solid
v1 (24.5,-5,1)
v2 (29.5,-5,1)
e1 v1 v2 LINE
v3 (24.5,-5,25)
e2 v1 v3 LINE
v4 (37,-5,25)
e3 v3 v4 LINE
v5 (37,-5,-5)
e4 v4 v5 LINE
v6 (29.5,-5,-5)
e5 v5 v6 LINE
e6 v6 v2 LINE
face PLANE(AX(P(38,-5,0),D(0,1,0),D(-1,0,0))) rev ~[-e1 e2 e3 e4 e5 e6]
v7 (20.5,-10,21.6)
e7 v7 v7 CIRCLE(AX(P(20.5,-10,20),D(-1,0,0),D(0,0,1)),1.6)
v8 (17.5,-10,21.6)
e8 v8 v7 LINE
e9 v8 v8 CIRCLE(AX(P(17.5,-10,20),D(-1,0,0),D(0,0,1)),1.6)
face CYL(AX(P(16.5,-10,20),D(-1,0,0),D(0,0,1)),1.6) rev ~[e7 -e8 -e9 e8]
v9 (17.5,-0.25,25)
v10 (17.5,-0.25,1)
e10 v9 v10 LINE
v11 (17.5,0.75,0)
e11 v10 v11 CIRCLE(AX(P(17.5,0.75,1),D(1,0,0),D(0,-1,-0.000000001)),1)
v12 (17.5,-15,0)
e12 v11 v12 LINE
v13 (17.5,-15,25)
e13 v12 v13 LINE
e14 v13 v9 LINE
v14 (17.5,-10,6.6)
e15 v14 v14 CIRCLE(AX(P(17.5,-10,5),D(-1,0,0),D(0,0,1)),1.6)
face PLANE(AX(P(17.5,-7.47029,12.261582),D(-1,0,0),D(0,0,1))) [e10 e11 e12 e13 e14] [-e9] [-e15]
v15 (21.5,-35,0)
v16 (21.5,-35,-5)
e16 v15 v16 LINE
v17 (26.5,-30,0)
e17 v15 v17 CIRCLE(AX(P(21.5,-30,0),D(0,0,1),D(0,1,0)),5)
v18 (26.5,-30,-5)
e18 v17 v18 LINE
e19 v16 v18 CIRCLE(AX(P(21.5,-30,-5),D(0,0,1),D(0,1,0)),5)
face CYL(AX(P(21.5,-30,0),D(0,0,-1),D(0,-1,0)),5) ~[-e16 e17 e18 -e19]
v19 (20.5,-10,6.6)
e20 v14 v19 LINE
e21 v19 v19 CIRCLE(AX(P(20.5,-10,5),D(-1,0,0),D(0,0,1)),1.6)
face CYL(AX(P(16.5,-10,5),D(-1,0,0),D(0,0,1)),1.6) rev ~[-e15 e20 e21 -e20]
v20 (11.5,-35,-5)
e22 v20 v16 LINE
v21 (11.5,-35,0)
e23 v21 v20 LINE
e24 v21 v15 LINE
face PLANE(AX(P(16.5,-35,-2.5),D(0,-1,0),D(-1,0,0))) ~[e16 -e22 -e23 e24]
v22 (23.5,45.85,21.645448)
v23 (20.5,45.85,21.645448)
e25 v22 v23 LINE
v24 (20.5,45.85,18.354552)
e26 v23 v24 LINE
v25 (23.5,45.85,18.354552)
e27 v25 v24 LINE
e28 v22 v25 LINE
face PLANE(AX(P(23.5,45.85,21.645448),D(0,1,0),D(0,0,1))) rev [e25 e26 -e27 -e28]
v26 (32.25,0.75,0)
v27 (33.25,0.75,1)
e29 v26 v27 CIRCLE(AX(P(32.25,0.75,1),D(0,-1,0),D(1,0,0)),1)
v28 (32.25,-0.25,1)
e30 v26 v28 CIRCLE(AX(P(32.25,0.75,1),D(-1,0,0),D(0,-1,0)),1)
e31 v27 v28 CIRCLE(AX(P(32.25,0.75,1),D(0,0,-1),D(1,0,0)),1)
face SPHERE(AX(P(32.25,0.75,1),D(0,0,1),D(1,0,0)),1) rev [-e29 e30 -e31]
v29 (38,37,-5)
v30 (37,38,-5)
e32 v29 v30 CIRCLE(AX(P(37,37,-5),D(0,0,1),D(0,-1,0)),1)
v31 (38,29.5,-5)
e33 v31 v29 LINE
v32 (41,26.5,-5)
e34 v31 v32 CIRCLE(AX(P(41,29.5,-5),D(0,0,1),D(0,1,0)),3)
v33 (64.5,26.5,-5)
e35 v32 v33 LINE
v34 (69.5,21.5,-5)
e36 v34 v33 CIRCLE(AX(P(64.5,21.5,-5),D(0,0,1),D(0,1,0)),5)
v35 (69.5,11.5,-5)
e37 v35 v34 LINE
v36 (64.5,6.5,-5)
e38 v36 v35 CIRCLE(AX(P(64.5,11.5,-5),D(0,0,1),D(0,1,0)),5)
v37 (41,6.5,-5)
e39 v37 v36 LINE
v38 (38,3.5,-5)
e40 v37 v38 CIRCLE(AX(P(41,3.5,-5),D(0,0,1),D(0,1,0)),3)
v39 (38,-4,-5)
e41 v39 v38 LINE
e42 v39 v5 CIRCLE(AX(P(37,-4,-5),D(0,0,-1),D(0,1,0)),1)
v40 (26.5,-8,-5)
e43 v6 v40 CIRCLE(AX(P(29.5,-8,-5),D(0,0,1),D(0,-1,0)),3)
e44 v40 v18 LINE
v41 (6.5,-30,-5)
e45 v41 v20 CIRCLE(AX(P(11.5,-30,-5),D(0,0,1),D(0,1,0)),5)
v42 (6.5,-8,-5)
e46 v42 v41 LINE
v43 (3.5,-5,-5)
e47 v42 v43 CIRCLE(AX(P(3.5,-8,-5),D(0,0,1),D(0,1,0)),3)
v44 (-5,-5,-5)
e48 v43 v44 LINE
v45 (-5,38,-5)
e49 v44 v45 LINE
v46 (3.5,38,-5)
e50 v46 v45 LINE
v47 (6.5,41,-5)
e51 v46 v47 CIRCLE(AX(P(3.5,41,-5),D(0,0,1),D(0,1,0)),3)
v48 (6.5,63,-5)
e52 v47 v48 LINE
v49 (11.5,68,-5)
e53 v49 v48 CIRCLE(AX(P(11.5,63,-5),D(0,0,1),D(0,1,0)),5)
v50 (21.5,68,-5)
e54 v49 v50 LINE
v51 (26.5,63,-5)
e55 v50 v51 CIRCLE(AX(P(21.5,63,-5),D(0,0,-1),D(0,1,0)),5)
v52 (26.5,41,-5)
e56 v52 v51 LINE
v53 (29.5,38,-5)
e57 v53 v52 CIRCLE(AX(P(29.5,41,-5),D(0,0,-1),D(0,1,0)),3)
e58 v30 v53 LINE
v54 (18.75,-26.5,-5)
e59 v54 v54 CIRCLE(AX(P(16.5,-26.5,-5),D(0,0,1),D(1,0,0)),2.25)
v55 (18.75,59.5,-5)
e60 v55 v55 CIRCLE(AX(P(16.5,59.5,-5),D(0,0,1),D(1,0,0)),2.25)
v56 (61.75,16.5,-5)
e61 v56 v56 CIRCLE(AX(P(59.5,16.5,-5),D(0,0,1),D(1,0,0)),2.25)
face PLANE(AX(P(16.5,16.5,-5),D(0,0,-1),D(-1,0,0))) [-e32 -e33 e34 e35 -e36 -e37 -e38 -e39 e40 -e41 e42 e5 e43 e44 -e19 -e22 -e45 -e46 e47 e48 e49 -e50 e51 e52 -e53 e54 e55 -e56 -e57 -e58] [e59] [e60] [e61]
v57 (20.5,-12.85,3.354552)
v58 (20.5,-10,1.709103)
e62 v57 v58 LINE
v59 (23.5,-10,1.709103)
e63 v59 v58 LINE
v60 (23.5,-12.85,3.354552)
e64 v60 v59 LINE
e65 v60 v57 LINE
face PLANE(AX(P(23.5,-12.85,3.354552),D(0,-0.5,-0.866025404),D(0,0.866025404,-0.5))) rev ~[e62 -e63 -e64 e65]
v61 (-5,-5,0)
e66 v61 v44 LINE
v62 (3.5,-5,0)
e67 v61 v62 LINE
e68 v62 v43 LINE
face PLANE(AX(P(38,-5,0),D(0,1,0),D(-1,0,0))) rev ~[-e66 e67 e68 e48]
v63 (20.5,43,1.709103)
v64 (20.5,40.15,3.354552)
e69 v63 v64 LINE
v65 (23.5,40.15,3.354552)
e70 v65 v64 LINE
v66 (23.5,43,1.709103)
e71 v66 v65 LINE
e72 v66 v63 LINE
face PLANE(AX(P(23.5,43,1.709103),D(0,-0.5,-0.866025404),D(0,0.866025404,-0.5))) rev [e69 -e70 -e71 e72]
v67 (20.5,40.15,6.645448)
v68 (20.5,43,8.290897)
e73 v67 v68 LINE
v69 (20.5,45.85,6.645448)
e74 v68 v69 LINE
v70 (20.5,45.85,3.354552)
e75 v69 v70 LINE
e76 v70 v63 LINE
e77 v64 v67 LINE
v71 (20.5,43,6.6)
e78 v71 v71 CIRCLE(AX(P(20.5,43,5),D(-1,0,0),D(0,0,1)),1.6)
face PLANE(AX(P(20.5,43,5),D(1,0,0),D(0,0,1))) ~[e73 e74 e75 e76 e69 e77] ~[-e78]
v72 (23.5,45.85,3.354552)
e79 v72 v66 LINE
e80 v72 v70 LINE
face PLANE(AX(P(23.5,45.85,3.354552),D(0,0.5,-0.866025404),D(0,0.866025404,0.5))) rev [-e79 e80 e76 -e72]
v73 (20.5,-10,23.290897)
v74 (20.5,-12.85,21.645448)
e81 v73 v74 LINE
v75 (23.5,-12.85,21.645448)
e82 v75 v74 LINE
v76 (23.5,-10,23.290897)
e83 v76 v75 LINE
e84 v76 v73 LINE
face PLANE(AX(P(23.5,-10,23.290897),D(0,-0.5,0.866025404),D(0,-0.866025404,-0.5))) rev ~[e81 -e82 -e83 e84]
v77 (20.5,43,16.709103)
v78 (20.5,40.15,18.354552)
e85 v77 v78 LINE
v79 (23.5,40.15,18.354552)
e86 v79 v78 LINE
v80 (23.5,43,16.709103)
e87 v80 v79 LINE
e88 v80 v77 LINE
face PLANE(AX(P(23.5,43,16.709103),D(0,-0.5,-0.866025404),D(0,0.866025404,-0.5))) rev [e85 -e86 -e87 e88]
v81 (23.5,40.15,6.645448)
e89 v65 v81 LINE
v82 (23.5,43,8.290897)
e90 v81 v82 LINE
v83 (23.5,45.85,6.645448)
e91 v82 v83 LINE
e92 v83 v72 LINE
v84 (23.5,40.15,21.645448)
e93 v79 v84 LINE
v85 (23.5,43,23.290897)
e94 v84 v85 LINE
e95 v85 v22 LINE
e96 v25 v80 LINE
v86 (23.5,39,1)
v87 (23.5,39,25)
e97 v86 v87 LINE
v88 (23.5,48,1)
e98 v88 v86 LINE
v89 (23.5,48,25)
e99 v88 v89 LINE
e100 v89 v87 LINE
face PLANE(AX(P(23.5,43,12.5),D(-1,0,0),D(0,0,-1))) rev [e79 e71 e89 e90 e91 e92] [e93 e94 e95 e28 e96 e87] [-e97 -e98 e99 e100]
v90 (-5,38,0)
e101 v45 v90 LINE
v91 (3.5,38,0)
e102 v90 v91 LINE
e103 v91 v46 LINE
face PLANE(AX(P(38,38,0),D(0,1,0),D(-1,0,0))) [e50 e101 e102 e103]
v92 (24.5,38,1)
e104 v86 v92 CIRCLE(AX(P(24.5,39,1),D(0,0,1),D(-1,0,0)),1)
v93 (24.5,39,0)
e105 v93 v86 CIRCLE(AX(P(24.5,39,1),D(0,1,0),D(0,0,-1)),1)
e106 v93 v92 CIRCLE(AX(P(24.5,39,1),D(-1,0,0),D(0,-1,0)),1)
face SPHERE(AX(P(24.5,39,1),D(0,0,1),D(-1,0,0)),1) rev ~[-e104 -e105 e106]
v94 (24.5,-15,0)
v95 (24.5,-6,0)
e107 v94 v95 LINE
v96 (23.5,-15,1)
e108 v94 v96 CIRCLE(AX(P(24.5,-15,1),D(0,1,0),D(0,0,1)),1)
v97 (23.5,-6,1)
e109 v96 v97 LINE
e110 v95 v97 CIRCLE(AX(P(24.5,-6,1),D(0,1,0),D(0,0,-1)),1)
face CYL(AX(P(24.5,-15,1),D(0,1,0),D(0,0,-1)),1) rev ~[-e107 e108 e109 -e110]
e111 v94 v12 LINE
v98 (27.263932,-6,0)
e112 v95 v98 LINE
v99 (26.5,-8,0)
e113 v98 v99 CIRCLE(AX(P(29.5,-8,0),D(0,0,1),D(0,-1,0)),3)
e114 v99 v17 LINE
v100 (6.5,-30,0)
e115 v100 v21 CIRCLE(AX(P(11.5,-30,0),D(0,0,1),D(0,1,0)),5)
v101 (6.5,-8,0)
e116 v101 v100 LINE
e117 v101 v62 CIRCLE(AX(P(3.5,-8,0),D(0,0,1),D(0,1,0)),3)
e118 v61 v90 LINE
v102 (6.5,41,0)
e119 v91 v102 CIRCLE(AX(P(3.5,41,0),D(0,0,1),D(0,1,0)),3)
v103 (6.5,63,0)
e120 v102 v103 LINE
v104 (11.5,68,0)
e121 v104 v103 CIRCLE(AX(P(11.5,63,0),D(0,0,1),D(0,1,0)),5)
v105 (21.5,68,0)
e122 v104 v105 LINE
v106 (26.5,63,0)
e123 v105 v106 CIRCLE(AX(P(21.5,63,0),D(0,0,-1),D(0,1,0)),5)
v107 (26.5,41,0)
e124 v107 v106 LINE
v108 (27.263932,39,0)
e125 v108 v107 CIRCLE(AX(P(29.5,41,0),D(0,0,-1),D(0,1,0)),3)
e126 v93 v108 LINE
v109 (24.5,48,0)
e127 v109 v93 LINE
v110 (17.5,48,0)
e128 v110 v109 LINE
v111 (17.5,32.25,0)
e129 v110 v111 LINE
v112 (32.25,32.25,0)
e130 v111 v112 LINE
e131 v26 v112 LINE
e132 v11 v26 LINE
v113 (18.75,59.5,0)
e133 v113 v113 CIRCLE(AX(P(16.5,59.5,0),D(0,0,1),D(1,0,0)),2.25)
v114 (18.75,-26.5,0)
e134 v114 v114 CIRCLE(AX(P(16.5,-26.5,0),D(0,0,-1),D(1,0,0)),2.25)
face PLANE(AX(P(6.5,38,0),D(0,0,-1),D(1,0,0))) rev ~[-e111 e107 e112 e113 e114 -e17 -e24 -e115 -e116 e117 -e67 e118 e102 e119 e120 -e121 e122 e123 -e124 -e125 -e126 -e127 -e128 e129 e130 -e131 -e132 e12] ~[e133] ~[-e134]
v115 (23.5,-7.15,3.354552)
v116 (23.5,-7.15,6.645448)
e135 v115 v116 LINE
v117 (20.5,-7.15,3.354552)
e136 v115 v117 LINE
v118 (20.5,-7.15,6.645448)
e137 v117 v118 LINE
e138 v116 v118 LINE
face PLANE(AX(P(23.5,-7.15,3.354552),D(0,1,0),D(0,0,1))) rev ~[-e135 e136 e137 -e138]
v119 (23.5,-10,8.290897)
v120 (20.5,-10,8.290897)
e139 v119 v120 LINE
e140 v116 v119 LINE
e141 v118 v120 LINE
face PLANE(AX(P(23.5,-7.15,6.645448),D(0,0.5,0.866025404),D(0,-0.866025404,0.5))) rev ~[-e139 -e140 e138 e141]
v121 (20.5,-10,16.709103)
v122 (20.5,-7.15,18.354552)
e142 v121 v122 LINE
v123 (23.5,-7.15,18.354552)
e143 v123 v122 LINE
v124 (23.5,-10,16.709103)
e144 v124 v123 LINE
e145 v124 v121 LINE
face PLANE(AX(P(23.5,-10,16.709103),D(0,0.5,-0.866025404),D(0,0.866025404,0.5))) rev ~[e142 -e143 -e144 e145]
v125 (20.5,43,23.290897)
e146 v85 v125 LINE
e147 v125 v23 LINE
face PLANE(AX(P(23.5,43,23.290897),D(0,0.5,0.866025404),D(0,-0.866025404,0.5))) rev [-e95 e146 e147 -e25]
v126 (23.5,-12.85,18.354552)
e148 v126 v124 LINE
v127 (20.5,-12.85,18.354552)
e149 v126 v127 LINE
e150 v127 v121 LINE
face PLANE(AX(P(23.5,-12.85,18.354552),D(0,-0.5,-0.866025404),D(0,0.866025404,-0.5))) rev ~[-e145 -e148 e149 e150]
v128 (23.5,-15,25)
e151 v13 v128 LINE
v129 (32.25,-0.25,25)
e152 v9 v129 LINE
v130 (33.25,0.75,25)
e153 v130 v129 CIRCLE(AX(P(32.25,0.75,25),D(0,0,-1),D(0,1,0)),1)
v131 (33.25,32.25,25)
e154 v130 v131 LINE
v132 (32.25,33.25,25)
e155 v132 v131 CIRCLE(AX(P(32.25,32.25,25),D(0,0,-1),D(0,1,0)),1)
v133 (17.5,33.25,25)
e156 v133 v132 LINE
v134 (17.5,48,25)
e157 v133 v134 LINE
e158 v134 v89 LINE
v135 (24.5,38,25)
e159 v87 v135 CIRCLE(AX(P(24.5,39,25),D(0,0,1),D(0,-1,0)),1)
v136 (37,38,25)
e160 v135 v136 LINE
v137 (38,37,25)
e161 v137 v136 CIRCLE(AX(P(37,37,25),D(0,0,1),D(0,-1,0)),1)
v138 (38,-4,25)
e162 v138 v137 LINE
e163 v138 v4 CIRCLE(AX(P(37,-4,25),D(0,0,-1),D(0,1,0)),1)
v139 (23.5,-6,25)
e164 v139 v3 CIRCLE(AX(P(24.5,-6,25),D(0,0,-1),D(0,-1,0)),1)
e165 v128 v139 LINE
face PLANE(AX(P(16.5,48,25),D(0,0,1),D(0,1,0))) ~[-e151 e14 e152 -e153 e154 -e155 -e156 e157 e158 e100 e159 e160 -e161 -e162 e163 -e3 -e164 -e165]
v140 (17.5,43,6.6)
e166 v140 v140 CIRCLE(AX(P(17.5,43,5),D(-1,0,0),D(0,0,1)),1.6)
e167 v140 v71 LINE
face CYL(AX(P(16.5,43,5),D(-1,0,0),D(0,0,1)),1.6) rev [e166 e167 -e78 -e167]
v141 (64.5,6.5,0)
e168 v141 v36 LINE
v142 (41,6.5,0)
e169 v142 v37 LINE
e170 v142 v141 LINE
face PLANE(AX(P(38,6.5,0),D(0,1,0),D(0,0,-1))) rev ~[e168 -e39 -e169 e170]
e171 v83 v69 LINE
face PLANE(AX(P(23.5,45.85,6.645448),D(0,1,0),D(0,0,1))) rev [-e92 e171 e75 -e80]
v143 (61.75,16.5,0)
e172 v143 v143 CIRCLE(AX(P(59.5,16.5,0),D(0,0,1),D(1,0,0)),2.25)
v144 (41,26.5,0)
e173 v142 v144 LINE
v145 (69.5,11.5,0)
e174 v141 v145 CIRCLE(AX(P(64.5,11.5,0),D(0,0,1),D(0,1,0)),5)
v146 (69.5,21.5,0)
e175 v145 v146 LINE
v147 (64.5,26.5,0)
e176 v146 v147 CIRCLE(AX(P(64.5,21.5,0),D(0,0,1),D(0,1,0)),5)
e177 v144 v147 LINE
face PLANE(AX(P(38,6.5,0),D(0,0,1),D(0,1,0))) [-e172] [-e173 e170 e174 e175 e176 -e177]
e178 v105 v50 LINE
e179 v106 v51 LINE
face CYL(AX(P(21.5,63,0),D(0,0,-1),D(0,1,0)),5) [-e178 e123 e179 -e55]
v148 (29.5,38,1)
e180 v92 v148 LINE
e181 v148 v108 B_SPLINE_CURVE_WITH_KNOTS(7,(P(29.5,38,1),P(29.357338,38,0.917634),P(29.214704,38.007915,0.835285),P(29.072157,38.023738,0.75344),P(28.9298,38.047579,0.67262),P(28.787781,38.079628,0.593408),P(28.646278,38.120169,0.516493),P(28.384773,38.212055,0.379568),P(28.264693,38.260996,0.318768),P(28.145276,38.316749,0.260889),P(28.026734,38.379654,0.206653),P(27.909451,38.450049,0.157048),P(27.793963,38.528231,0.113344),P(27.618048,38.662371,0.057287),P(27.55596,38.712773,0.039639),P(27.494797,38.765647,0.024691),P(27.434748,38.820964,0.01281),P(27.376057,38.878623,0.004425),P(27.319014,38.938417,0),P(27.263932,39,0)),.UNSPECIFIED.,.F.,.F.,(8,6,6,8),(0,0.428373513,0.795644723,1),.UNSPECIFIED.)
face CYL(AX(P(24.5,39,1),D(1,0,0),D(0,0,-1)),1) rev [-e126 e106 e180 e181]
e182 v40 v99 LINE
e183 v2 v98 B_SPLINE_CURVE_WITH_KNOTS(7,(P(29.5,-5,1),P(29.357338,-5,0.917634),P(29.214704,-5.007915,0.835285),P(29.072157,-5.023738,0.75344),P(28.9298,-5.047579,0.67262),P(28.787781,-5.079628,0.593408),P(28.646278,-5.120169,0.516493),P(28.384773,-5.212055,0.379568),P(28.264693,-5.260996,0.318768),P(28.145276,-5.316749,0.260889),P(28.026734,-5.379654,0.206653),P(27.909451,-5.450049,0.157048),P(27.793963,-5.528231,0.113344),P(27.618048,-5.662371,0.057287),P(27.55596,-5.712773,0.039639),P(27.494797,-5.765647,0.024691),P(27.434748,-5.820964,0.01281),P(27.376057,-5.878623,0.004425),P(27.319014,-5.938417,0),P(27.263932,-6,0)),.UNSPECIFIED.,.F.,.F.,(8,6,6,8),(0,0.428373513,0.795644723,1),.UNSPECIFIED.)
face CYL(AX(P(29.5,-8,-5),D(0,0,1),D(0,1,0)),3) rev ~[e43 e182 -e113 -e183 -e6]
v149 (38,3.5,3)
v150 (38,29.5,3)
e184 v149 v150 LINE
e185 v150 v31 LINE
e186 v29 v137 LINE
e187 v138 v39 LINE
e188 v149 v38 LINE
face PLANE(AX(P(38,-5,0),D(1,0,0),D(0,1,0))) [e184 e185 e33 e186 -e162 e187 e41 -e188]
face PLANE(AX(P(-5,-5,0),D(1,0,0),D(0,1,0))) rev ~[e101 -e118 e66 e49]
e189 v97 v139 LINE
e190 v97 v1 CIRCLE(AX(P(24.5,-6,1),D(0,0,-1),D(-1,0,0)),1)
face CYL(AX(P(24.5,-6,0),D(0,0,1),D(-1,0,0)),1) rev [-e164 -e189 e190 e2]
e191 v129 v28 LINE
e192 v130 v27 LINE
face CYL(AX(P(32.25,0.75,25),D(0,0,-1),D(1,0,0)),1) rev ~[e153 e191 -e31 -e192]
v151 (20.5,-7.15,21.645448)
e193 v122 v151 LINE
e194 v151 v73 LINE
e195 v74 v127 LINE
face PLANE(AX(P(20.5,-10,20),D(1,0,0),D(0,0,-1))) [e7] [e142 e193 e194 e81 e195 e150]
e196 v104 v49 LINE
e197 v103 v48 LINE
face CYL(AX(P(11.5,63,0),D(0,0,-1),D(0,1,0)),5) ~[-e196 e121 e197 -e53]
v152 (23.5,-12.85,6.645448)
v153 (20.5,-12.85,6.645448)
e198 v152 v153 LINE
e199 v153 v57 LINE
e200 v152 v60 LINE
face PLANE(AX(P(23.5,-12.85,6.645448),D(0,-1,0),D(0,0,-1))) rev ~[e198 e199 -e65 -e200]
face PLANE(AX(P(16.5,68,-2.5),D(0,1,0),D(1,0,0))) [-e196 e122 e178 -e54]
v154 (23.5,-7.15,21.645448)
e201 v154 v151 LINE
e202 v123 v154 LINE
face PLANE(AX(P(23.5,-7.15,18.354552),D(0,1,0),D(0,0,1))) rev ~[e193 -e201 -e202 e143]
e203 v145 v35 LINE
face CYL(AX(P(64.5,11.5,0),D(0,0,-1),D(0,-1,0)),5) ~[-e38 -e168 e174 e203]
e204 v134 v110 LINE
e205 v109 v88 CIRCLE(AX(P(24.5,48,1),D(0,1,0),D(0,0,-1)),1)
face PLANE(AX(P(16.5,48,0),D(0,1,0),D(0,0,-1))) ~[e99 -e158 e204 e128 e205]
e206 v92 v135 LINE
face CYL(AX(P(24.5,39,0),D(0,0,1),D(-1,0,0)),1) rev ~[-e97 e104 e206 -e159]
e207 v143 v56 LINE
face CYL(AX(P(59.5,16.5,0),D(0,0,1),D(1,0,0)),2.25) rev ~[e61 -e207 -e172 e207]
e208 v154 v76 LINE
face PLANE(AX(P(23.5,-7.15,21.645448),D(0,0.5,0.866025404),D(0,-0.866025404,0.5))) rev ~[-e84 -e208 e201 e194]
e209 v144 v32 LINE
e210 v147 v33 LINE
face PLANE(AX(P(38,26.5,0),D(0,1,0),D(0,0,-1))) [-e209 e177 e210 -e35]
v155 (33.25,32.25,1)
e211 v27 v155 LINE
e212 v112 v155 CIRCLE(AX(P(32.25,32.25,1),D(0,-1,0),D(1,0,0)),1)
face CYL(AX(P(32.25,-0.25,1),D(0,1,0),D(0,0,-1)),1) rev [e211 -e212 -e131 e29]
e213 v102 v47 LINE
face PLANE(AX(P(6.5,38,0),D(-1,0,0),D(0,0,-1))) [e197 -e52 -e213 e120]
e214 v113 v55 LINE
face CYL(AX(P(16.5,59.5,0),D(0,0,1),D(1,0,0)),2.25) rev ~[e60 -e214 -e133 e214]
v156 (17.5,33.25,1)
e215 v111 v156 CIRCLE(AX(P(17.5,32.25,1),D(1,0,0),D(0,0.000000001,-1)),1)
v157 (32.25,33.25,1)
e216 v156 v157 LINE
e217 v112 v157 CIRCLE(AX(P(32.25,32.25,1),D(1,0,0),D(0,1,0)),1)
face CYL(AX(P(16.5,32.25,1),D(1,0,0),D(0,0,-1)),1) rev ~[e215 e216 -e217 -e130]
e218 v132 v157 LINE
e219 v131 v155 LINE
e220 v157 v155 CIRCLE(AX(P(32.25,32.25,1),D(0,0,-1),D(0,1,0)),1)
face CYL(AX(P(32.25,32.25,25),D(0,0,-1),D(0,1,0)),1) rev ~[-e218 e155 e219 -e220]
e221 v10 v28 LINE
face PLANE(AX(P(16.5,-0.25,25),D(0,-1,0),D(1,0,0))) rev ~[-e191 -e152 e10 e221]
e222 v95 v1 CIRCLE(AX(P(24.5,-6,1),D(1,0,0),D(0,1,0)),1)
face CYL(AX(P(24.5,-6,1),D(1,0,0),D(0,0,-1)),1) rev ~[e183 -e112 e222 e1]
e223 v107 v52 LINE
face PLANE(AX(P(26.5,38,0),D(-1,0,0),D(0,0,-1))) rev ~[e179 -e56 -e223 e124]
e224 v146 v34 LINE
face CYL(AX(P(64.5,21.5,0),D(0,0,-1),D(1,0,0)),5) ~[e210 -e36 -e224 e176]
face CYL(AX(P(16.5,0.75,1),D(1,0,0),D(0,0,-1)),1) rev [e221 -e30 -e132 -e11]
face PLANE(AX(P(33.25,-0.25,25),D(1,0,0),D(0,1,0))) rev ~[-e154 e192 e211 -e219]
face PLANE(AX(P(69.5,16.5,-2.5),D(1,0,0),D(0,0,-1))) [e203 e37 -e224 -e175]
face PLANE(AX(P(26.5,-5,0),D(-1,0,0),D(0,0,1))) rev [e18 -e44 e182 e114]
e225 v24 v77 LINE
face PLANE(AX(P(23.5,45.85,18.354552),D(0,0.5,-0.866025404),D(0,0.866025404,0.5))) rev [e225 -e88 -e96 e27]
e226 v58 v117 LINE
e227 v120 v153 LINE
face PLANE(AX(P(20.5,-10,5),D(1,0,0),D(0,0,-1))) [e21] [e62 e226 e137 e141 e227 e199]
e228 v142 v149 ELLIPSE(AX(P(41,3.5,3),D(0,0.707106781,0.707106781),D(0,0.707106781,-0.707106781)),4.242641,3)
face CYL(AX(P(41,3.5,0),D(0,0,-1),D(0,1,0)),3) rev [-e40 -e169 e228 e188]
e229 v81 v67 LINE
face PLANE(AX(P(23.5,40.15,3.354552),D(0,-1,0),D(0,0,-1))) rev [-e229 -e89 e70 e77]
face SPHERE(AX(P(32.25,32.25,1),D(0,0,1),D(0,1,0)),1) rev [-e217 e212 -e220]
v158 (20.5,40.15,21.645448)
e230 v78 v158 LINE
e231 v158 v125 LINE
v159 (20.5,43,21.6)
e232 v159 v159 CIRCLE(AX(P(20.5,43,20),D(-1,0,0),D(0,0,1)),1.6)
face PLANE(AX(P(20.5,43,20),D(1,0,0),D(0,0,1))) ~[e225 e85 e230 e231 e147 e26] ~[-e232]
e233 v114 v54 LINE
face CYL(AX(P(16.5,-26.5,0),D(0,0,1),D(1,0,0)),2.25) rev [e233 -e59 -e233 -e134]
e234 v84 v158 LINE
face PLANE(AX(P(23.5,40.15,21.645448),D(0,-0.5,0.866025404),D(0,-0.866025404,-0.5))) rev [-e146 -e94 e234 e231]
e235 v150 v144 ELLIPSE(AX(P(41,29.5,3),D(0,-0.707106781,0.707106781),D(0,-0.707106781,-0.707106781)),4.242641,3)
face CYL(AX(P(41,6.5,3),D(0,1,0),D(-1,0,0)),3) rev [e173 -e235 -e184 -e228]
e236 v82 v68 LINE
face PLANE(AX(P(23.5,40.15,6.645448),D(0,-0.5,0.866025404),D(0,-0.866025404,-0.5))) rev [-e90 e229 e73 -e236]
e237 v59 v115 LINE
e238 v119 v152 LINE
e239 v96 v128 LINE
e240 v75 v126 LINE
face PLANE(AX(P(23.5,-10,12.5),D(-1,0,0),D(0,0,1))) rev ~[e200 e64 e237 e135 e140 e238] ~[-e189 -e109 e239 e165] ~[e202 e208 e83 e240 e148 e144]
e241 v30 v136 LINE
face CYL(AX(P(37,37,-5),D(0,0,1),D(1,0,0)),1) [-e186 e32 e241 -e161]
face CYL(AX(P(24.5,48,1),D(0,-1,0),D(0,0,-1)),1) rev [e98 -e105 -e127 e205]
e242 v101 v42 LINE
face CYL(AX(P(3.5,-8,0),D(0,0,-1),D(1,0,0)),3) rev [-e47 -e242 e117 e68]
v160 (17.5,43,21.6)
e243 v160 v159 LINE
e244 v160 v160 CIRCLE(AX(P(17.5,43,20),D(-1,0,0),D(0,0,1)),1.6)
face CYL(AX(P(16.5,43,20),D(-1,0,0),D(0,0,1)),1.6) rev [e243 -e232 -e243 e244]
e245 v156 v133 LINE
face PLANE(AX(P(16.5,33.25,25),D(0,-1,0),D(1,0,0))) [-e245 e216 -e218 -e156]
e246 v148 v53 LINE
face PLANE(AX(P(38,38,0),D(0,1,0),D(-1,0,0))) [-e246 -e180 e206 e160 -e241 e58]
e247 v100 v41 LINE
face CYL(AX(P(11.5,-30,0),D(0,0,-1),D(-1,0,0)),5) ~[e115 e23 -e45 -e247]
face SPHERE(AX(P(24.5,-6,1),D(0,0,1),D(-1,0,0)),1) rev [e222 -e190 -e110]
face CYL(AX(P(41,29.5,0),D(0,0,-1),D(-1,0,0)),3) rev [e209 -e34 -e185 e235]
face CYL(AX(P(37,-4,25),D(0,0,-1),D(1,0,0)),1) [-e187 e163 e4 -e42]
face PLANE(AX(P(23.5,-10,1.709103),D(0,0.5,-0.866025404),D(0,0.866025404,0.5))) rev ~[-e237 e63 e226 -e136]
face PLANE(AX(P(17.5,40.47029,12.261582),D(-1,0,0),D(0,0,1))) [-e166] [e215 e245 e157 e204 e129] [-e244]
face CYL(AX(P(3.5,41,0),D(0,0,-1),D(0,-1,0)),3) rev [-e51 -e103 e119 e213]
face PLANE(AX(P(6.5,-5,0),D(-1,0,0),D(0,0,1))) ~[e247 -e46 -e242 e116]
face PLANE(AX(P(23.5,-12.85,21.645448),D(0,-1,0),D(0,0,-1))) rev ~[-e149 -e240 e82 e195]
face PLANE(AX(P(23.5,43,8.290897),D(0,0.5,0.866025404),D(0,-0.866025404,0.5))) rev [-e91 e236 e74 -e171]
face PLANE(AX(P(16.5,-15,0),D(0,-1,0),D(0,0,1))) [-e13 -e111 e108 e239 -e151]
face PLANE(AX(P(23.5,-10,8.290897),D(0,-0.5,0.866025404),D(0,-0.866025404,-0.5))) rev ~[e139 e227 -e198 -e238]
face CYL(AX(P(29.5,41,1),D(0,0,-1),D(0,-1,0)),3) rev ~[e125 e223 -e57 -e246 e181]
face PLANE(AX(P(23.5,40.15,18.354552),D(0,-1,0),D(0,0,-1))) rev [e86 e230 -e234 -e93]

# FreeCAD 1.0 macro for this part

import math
import FreeCAD as App
import Part
import Sketcher
from FreeCAD import Vector
Q = App.Units.Quantity


def edges_at(feature, points):
    """Names of the edges that pass closest to the given points."""
    edges = feature.Shape.Edges
    near = lambda p: min(range(len(edges)), key=lambda i: edges[i].distToShape(Part.Vertex(*p))[0])
    return sorted({f"Edge{near(p) + 1}" for p in points})


def add_polygon(sketch, points):
    """Adds a closed chain of lines whose ends are joined by coincident constraints."""
    first, n = sketch.GeometryCount, len(points)
    for a, b in zip(points, points[1:] + points[:1]):
        sketch.addGeometry(Part.LineSegment(App.Vector(*a, 0), App.Vector(*b, 0)), False)
    for i in range(n):
        sketch.addConstraint(Sketcher.Constraint("Coincident", first + i, 2, first + (i + 1) % n, 1))

doc = App.newDocument("Part")
params = doc.addObject("Spreadsheet::Sheet", "Params")
for row, (alias, value) in enumerate([
    ("sketch1_width", "43 mm"),
    ("sketch1_width2", "33 mm"),
    ("pad1_length", "25 mm"),
    ("sketch2_width", "43 mm"),
    ("pad2_length", "5 mm"),
    ("sketch3_width", "20 mm"),
    ("sketch3_height", "5 mm"),
    ("pad3_length", "30 mm"),
    ("sketch4_diameter", "4.5 mm"),
    ("sketch5_height", "43 mm"),
    ("sketch5_width", "21.5 mm"),
    ("pocket2_length", "25 mm"),
    ("sketch6_width", "10 mm"),
    ("sketch6_height", "25 mm"),
    ("pad4_length", "7 mm"),
    ("fillet_radius", "1 mm"),
    ("sketch7_diameter", "3.2 mm"),
    ("pocket4_length", "3 mm"),
    ("sketch9_height", "33.5 mm"),
    ("sketch9_width", "16.75 mm"),
    ("pocket5_length", "25 mm"),
    ("fillet2_radius", "1 mm"),
    ("fillet3_radius", "1 mm"),
    ("fillet4_radius", "5 mm"),
    ("fillet5_radius", "1 mm"),
    ("sketch10_radius", "1 mm"),
    ("sketch10_height", "24 mm"),
    ("sketch10_width", "15.75 mm"),
    ("pocket6_length", "1 mm"),
    ("sketch11_width", "20 mm"),
    ("sketch11_height", "5 mm"),
    ("pad5_length", "31.5 mm"),
    ("sketch12_diameter", "4.5 mm"),
    ("fillet6_radius", "5 mm"),
    ("fillet7_radius", "3 mm"),
    ("fillet8_radius", "1 mm"),
], start=1):
    params.set(f"A{row}", alias)
    params.set(f"B{row}", "=" + value)
    params.setAlias(f"B{row}", alias)

body = doc.addObject("PartDesign::Body", "Body")

# Sketch on XY plane
sketch1 = body.newObject("Sketcher::SketchObject", "Sketch")
sketch1.AttachmentSupport = (doc.getObject("XY_Plane"), [""])
sketch1.MapMode = "FlatFace"
add_polygon(sketch1, [(-5, 38), (-5, -5), (38, -5), (38, 38)])  # lines 0-3
add_polygon(sketch1, [(33, 0), (0, 0), (0, 33), (33, 33)])  # lines 4-7
sketch1.addConstraint(Sketcher.Constraint("Vertical", 0))
sketch1.addConstraint(Sketcher.Constraint("Horizontal", 1))
sketch1.addConstraint(Sketcher.Constraint("Vertical", 2))
sketch1.addConstraint(Sketcher.Constraint("Horizontal", 3))
sketch1.addConstraint(Sketcher.Constraint("Horizontal", 4))
sketch1.addConstraint(Sketcher.Constraint("Vertical", 5))
sketch1.addConstraint(Sketcher.Constraint("Horizontal", 6))
sketch1.addConstraint(Sketcher.Constraint("Vertical", 7))
sketch1.addConstraint(Sketcher.Constraint("Coincident", 4, 2, -1, 1))
sketch1.addConstraint(Sketcher.Constraint("Equal", 3, 0))
sketch1.addConstraint(Sketcher.Constraint("Equal", 6, 5))
sketch1.addConstraint(Sketcher.Constraint("DistanceX", 1, 1, 1, 2, 43.0))
sketch1.addConstraint(Sketcher.Constraint("DistanceX", 4, 2, 4, 1, 33.0))
sketch1.addConstraint(Sketcher.Constraint("DistanceX", 0, 2, -1, 1, 5.0))
sketch1.addConstraint(Sketcher.Constraint("DistanceY", 0, 2, -1, 1, 5.0))
sketch1.setExpression("Constraints[19]", "Params.sketch1_width")
sketch1.setExpression("Constraints[20]", "Params.sketch1_width2")
pad1 = body.newObject("PartDesign::Pad", "Pad")
pad1.Profile = sketch1
pad1.setExpression("Length", "Params.pad1_length")

# Sketch on XY plane
sketch2 = body.newObject("Sketcher::SketchObject", "Sketch001")
sketch2.AttachmentSupport = (doc.getObject("XY_Plane"), [""])
sketch2.MapMode = "FlatFace"
add_polygon(sketch2, [(38, 38), (38, -5), (-5, -5), (-5, 38)])  # lines 0-3
sketch2.addConstraint(Sketcher.Constraint("Vertical", 0))
sketch2.addConstraint(Sketcher.Constraint("Horizontal", 1))
sketch2.addConstraint(Sketcher.Constraint("Vertical", 2))
sketch2.addConstraint(Sketcher.Constraint("Horizontal", 3))
sketch2.addConstraint(Sketcher.Constraint("Equal", 3, 0))
sketch2.addConstraint(Sketcher.Constraint("DistanceX", 1, 2, 1, 1, 43.0))
sketch2.addConstraint(Sketcher.Constraint("DistanceX", -1, 1, 0, 2, 38.0))
sketch2.addConstraint(Sketcher.Constraint("DistanceY", 0, 2, -1, 1, 5.0))
sketch2.setExpression("Constraints[9]", "Params.sketch2_width")
pad2 = body.newObject("PartDesign::Pad", "Pad001")
pad2.Profile = sketch2
pad2.setExpression("Length", "Params.pad2_length")
pad2.Reversed = True

# Sketch on XZ plane
sketch3 = body.newObject("Sketcher::SketchObject", "Sketch002")
sketch3.AttachmentSupport = (doc.getObject("XZ_Plane"), [""])
sketch3.MapMode = "FlatFace"
sketch3.AttachmentOffset = App.Placement(Vector(0, 0, -38), App.Rotation())
add_polygon(sketch3, [(6.5, -5), (6.5, 0), (26.5, 0), (26.5, -5)])  # lines 0-3
sketch3.addConstraint(Sketcher.Constraint("Vertical", 0))
sketch3.addConstraint(Sketcher.Constraint("Horizontal", 1))
sketch3.addConstraint(Sketcher.Constraint("Vertical", 2))
sketch3.addConstraint(Sketcher.Constraint("Horizontal", 3))
sketch3.addConstraint(Sketcher.Constraint("PointOnObject", 0, 2, -1))
sketch3.addConstraint(Sketcher.Constraint("DistanceX", 1, 1, 1, 2, 20.0))
sketch3.addConstraint(Sketcher.Constraint("DistanceY", 0, 1, 0, 2, 5.0))
sketch3.addConstraint(Sketcher.Constraint("DistanceX", -1, 1, 0, 2, 6.5))
sketch3.setExpression("Constraints[9]", "Params.sketch3_width")
sketch3.setExpression("Constraints[10]", "Params.sketch3_height")
pad3 = body.newObject("PartDesign::Pad", "Pad002")
pad3.Profile = sketch3
pad3.setExpression("Length", "Params.pad3_length")
pad3.Reversed = True

# Sketch on XY plane
sketch4 = body.newObject("Sketcher::SketchObject", "Sketch003")
sketch4.AttachmentSupport = (doc.getObject("XY_Plane"), [""])
sketch4.MapMode = "FlatFace"
sketch4.addGeometry(Part.Circle(Vector(16.5, 59.5, 0), Vector(0, 0, 1), 2.25), False)
sketch4.addConstraint(Sketcher.Constraint("Diameter", 0, 4.5))
sketch4.addConstraint(Sketcher.Constraint("DistanceX", -1, 1, 0, 3, 16.5))
sketch4.addConstraint(Sketcher.Constraint("DistanceY", -1, 1, 0, 3, 59.5))
sketch4.setExpression("Constraints[0]", "Params.sketch4_diameter")
pocket1 = body.newObject("PartDesign::Pocket", "Pocket")
pocket1.Profile = sketch4
pocket1.Type = "ThroughAll"
doc.recompute()

datumplane = body.newObject("PartDesign::Plane", "DatumPlane")
datumplane.AttachmentSupport = (doc.getObject("XZ_Plane"), [""])
datumplane.MapMode = "FlatFace"
datumplane.AttachmentOffset = App.Placement(Vector(0, 0, -16.5), App.Rotation())
mirrored = body.newObject("PartDesign::Mirrored", "Mirrored")
mirrored.Originals = [pad3, pocket1]
mirrored.MirrorPlane = (datumplane, [""])
body.Tip = mirrored

# Sketch on XY plane
sketch5 = body.newObject("Sketcher::SketchObject", "Sketch004")
sketch5.AttachmentSupport = (doc.getObject("XY_Plane"), [""])
sketch5.MapMode = "FlatFace"
sketch5.AttachmentOffset = App.Placement(Vector(0, 0, 25), App.Rotation())
add_polygon(sketch5, [(-5, 38), (-5, -5), (16.5, -5), (16.5, 38)])  # lines 0-3
sketch5.addConstraint(Sketcher.Constraint("Vertical", 0))
sketch5.addConstraint(Sketcher.Constraint("Horizontal", 1))
sketch5.addConstraint(Sketcher.Constraint("Vertical", 2))
sketch5.addConstraint(Sketcher.Constraint("Horizontal", 3))
sketch5.addConstraint(Sketcher.Constraint("DistanceY", 0, 2, 0, 1, 43.0))
sketch5.addConstraint(Sketcher.Constraint("DistanceX", 1, 1, 1, 2, 21.5))
sketch5.addConstraint(Sketcher.Constraint("DistanceX", 0, 2, -1, 1, 5.0))
sketch5.addConstraint(Sketcher.Constraint("DistanceY", 0, 2, -1, 1, 5.0))
sketch5.setExpression("Constraints[8]", "Params.sketch5_height")
sketch5.setExpression("Constraints[9]", "Params.sketch5_width")
pocket2 = body.newObject("PartDesign::Pocket", "Pocket001")
pocket2.Profile = sketch5
pocket2.setExpression("Length", "Params.pocket2_length")

# Sketch on YZ plane
sketch6 = body.newObject("Sketcher::SketchObject", "Sketch005")
sketch6.AttachmentSupport = (doc.getObject("YZ_Plane"), [""])
sketch6.MapMode = "FlatFace"
sketch6.AttachmentOffset = App.Placement(Vector(0, 0, 16.5), App.Rotation())
add_polygon(sketch6, [(-5, 0), (-15, 0), (-15, 25), (-5, 25)])  # lines 0-3
sketch6.addConstraint(Sketcher.Constraint("Horizontal", 0))
sketch6.addConstraint(Sketcher.Constraint("Vertical", 1))
sketch6.addConstraint(Sketcher.Constraint("Horizontal", 2))
sketch6.addConstraint(Sketcher.Constraint("Vertical", 3))
sketch6.addConstraint(Sketcher.Constraint("PointOnObject", 0, 2, -1))
sketch6.addConstraint(Sketcher.Constraint("DistanceX", 0, 2, 0, 1, 10.0))
sketch6.addConstraint(Sketcher.Constraint("DistanceY", 1, 1, 1, 2, 25.0))
sketch6.addConstraint(Sketcher.Constraint("DistanceX", 0, 2, -1, 1, 15.0))
sketch6.setExpression("Constraints[9]", "Params.sketch6_width")
sketch6.setExpression("Constraints[10]", "Params.sketch6_height")
pad4 = body.newObject("PartDesign::Pad", "Pad003")
pad4.Profile = sketch6
pad4.setExpression("Length", "Params.pad4_length")
doc.recompute()

fillet = body.newObject("PartDesign::Fillet", "Fillet")
fillet.Base = (pad4, edges_at(pad4, [(23.5, -5, 12.5)]))
fillet.setExpression("Radius", "Params.fillet_radius")

# Sketch on YZ plane
sketch7 = body.newObject("Sketcher::SketchObject", "Sketch006")
sketch7.AttachmentSupport = (doc.getObject("YZ_Plane"), [""])
sketch7.MapMode = "FlatFace"
sketch7.AttachmentOffset = App.Placement(Vector(0, 0, 16.5), App.Rotation())
sketch7.addGeometry(Part.Circle(Vector(-10, 20, 0), Vector(0, 0, 1), 1.6), False)
sketch7.addGeometry(Part.Circle(Vector(-10, 5, 0), Vector(0, 0, 1), 1.6), False)
sketch7.addConstraint(Sketcher.Constraint("Equal", 0, 1))
sketch7.addConstraint(Sketcher.Constraint("Vertical", 0, 3, 1, 3))
sketch7.addConstraint(Sketcher.Constraint("Diameter", 0, 3.2))
sketch7.addConstraint(Sketcher.Constraint("DistanceX", 0, 3, -1, 1, 10.0))
sketch7.addConstraint(Sketcher.Constraint("DistanceY", -1, 1, 0, 3, 20.0))
sketch7.addConstraint(Sketcher.Constraint("DistanceY", -1, 1, 1, 3, 5.0))
sketch7.setExpression("Constraints[2]", "Params.sketch7_diameter")
pocket3 = body.newObject("PartDesign::Pocket", "Pocket002")
pocket3.Profile = sketch7
pocket3.Type = "ThroughAll"
pocket3.Reversed = True

# Sketch on YZ plane
sketch8 = body.newObject("Sketcher::SketchObject", "Sketch007")
sketch8.AttachmentSupport = (doc.getObject("YZ_Plane"), [""])
sketch8.MapMode = "FlatFace"
sketch8.AttachmentOffset = App.Placement(Vector(0, 0, 23.5), App.Rotation())
add_polygon(sketch8, [(-12.85, 18.354552), (-10, 16.709103), (-7.15, 18.354552), (-7.15, 21.645448), (-10, 23.290897), (-12.85, 21.645448)])  # lines 0-5
add_polygon(sketch8, [(-12.85, 6.645448), (-12.85, 3.354552), (-10, 1.709103), (-7.15, 3.354552), (-7.15, 6.645448), (-10, 8.290897)])  # lines 6-11
sketch8.addConstraint(Sketcher.Constraint("Vertical", 2))
sketch8.addConstraint(Sketcher.Constraint("Vertical", 5))
sketch8.addConstraint(Sketcher.Constraint("Vertical", 6))
sketch8.addConstraint(Sketcher.Constraint("Vertical", 9))
sketch8.addConstraint(Sketcher.Constraint("Parallel", 0, 3))
sketch8.addConstraint(Sketcher.Constraint("Parallel", 1, 4))
sketch8.addConstraint(Sketcher.Constraint("Parallel", 3, 7))
sketch8.addConstraint(Sketcher.Constraint("Parallel", 4, 8))
sketch8.addConstraint(Sketcher.Constraint("Parallel", 7, 10))
sketch8.addConstraint(Sketcher.Constraint("Parallel", 8, 11))
sketch8.addConstraint(Sketcher.Constraint("Horizontal", 2, 2, 4, 2))
sketch8.addConstraint(Sketcher.Constraint("Horizontal", 1, 2, 5, 2))
sketch8.addConstraint(Sketcher.Constraint("Horizontal", 6, 2, 8, 2))
sketch8.addConstraint(Sketcher.Constraint("Horizontal", 9, 2, 11, 2))
sketch8.addConstraint(Sketcher.Constraint("Vertical", 0, 2, 3, 2))
sketch8.addConstraint(Sketcher.Constraint("Vertical", 5, 2, 6, 2))
sketch8.addConstraint(Sketcher.Constraint("Vertical", 3, 2, 7, 2))
sketch8.addConstraint(Sketcher.Constraint("Equal", 5, 6))
sketch8.addConstraint(Sketcher.Constraint("Angle", 0, Q("-30 deg")))
sketch8.addConstraint(Sketcher.Constraint("DistanceX", 0, 2, -1, 1, 10.0))
sketch8.addConstraint(Sketcher.Constraint("DistanceY", 6, 2, 5, 2, 15.0))
sketch8.addConstraint(Sketcher.Constraint("DistanceX", 4, 2, 2, 2, 5.7))
sketch8.addConstraint(Sketcher.Constraint("DistanceY", 2, 1, 2, 2, 3.290897))
sketch8.addConstraint(Sketcher.Constraint("DistanceY", -1, 1, 1, 2, 18.354552))
pocket4 = body.newObject("PartDesign::Pocket", "Pocket003")
pocket4.Profile = sketch8
pocket4.setExpression("Length", "Params.pocket4_length")
doc.recompute()

datumplane2 = body.newObject("PartDesign::Plane", "DatumPlane001")
datumplane2.AttachmentSupport = (doc.getObject("XZ_Plane"), [""])
datumplane2.MapMode = "FlatFace"
datumplane2.AttachmentOffset = App.Placement(Vector(0, 0, -16.5), App.Rotation())
mirrored2 = body.newObject("PartDesign::Mirrored", "Mirrored001")
mirrored2.Originals = [pad4]
mirrored2.MirrorPlane = (datumplane2, [""])
body.Tip = mirrored2
doc.recompute()

datumplane3 = body.newObject("PartDesign::Plane", "DatumPlane002")
datumplane3.AttachmentSupport = (doc.getObject("XZ_Plane"), [""])
datumplane3.MapMode = "FlatFace"
datumplane3.AttachmentOffset = App.Placement(Vector(0, 0, -16.5), App.Rotation())
mirrored3 = body.newObject("PartDesign::Mirrored", "Mirrored002")
mirrored3.Originals = [pocket3]
mirrored3.MirrorPlane = (datumplane3, [""])
body.Tip = mirrored3
doc.recompute()

datumplane4 = body.newObject("PartDesign::Plane", "DatumPlane003")
datumplane4.AttachmentSupport = (doc.getObject("XZ_Plane"), [""])
datumplane4.MapMode = "FlatFace"
datumplane4.AttachmentOffset = App.Placement(Vector(0, 0, -16.5), App.Rotation())
mirrored4 = body.newObject("PartDesign::Mirrored", "Mirrored003")
mirrored4.Originals = [pocket4]
mirrored4.MirrorPlane = (datumplane4, [""])
body.Tip = mirrored4

# Sketch on XY plane
sketch9 = body.newObject("Sketcher::SketchObject", "Sketch008")
sketch9.AttachmentSupport = (doc.getObject("XY_Plane"), [""])
sketch9.MapMode = "FlatFace"
sketch9.AttachmentOffset = App.Placement(Vector(0, 0, 25), App.Rotation())
add_polygon(sketch9, [(16.5, 33.25), (16.5, -0.25), (33.25, -0.25), (33.25, 33.25)])  # lines 0-3
sketch9.addConstraint(Sketcher.Constraint("Vertical", 0))
sketch9.addConstraint(Sketcher.Constraint("Horizontal", 1))
sketch9.addConstraint(Sketcher.Constraint("Vertical", 2))
sketch9.addConstraint(Sketcher.Constraint("Horizontal", 3))
sketch9.addConstraint(Sketcher.Constraint("DistanceY", 0, 2, 0, 1, 33.5))
sketch9.addConstraint(Sketcher.Constraint("DistanceX", 1, 1, 1, 2, 16.75))
sketch9.addConstraint(Sketcher.Constraint("DistanceX", -1, 1, 0, 2, 16.5))
sketch9.addConstraint(Sketcher.Constraint("DistanceY", 0, 2, -1, 1, 0.25))
sketch9.setExpression("Constraints[8]", "Params.sketch9_height")
sketch9.setExpression("Constraints[9]", "Params.sketch9_width")
pocket5 = body.newObject("PartDesign::Pocket", "Pocket004")
pocket5.Profile = sketch9
pocket5.setExpression("Length", "Params.pocket5_length")
doc.recompute()

fillet2 = body.newObject("PartDesign::Fillet", "Fillet001")
fillet2.Base = (pocket5, edges_at(pocket5, [(23.5, 38, 12.5)]))
fillet2.setExpression("Radius", "Params.fillet2_radius")
doc.recompute()

fillet3 = body.newObject("PartDesign::Fillet", "Fillet002")
fillet3.Base = (fillet2, edges_at(fillet2, [
    (25.5, -5, 0),
    (23.5, -10.5, 0),
    (23.793, -5.293, 0),
    (23.5, 43.5, 0),
    (25.5, 38, 0),
    (23.793, 38.293, 0),
]))
fillet3.setExpression("Radius", "Params.fillet3_radius")
doc.recompute()

fillet4 = body.newObject("PartDesign::Fillet", "Fillet003")
fillet4.Base = (fillet3, edges_at(fillet3, [
    (6.5, -35, -2.5),
    (26.5, -35, -2.5),
    (6.5, 68, -2.5),
    (26.5, 68, -2.5),
]))
fillet4.setExpression("Radius", "Params.fillet4_radius")
doc.recompute()

fillet5 = body.newObject("PartDesign::Fillet", "Fillet004")
fillet5.Base = (fillet4, edges_at(fillet4, [
    (33.25, 33.25, 12.5),
    (33.25, -0.25, 12.5),
    (24.875, 33.25, 0),
    (33.25, 16.5, 0),
    (24.875, -0.25, 0),
]))
fillet5.setExpression("Radius", "Params.fillet5_radius")

# Sketch on YZ plane
sketch10 = body.newObject("Sketcher::SketchObject", "Sketch009")
sketch10.AttachmentSupport = (doc.getObject("YZ_Plane"), [""])
sketch10.MapMode = "FlatFace"
sketch10.AttachmentOffset = App.Placement(Vector(0, 0, 16.5), App.Rotation())
sketch10.addGeometry(Part.LineSegment(Vector(48, 0, 0), Vector(32.25, 0, 0)), False)
sketch10.addGeometry(Part.ArcOfCircle(Part.Circle(Vector(32.25, 1, 0), Vector(0, 0, 1), 1), math.radians(-90), math.radians(0)), False)
sketch10.addGeometry(Part.LineSegment(Vector(33.25, 1, 0), Vector(33.25, 25, 0)), False)
sketch10.addGeometry(Part.LineSegment(Vector(33.25, 25, 0), Vector(48, 25, 0)), False)
sketch10.addGeometry(Part.LineSegment(Vector(48, 25, 0), Vector(48, 0, 0)), False)
sketch10.addGeometry(Part.LineSegment(Vector(-15, 25, 0), Vector(-0.25, 25, 0)), False)
sketch10.addGeometry(Part.LineSegment(Vector(-0.25, 25, 0), Vector(-0.25, 1, 0)), False)
sketch10.addGeometry(Part.ArcOfCircle(Part.Circle(Vector(0.75, 1, 0), Vector(0, 0, 1), 1), math.radians(-180), math.radians(-90)), False)
sketch10.addGeometry(Part.LineSegment(Vector(0.75, 0, 0), Vector(-15, 0, 0)), False)
sketch10.addGeometry(Part.LineSegment(Vector(-15, 0, 0), Vector(-15, 25, 0)), False)
sketch10.addConstraint(Sketcher.Constraint("Tangent", 0, 2, 1, 1))
sketch10.addConstraint(Sketcher.Constraint("Tangent", 1, 2, 2, 1))
sketch10.addConstraint(Sketcher.Constraint("Coincident", 2, 2, 3, 1))
sketch10.addConstraint(Sketcher.Constraint("Coincident", 3, 2, 4, 1))
sketch10.addConstraint(Sketcher.Constraint("Coincident", 4, 2, 0, 1))
sketch10.addConstraint(Sketcher.Constraint("Coincident", 5, 2, 6, 1))
sketch10.addConstraint(Sketcher.Constraint("Tangent", 6, 2, 7, 1))
sketch10.addConstraint(Sketcher.Constraint("Tangent", 7, 2, 8, 1))
sketch10.addConstraint(Sketcher.Constraint("Coincident", 8, 2, 9, 1))
sketch10.addConstraint(Sketcher.Constraint("Coincident", 9, 2, 5, 1))
sketch10.addConstraint(Sketcher.Constraint("Horizontal", 0))
sketch10.addConstraint(Sketcher.Constraint("Vertical", 2))
sketch10.addConstraint(Sketcher.Constraint("Horizontal", 3))
sketch10.addConstraint(Sketcher.Constraint("Vertical", 4))
sketch10.addConstraint(Sketcher.Constraint("Horizontal", 5))
sketch10.addConstraint(Sketcher.Constraint("Vertical", 6))
sketch10.addConstraint(Sketcher.Constraint("Horizontal", 8))
sketch10.addConstraint(Sketcher.Constraint("Vertical", 9))
sketch10.addConstraint(Sketcher.Constraint("Equal", 1, 7))
sketch10.addConstraint(Sketcher.Constraint("PointOnObject", 0, 2, -1))
sketch10.addConstraint(Sketcher.Constraint("PointOnObject", 7, 2, -1))
sketch10.addConstraint(Sketcher.Constraint("Horizontal", 3, 2, 5, 2))
sketch10.addConstraint(Sketcher.Constraint("Equal", 3, 5))
sketch10.addConstraint(Sketcher.Constraint("Radius", 1, 1.0))
sketch10.addConstraint(Sketcher.Constraint("DistanceY", 2, 1, 2, 2, 24.0))
sketch10.addConstraint(Sketcher.Constraint("DistanceX", -1, 1, 3, 2, 48.0))
sketch10.addConstraint(Sketcher.Constraint("DistanceX", 8, 2, -1, 1, 15.0))
sketch10.addConstraint(Sketcher.Constraint("DistanceX", 0, 2, 0, 1, 15.75))
sketch10.setExpression("Constraints[23]", "Params.sketch10_radius")
sketch10.setExpression("Constraints[24]", "Params.sketch10_height")
sketch10.setExpression("Constraints[27]", "Params.sketch10_width")
pocket6 = body.newObject("PartDesign::Pocket", "Pocket005")
pocket6.Profile = sketch10
pocket6.setExpression("Length", "Params.pocket6_length")
pocket6.Reversed = True

# Sketch on YZ plane
sketch11 = body.newObject("Sketcher::SketchObject", "Sketch010")
sketch11.AttachmentSupport = (doc.getObject("YZ_Plane"), [""])
sketch11.MapMode = "FlatFace"
sketch11.AttachmentOffset = App.Placement(Vector(0, 0, 38), App.Rotation())
add_polygon(sketch11, [(26.5, 0), (6.5, 0), (6.5, -5), (26.5, -5)])  # lines 0-3
sketch11.addConstraint(Sketcher.Constraint("Horizontal", 0))
sketch11.addConstraint(Sketcher.Constraint("Vertical", 1))
sketch11.addConstraint(Sketcher.Constraint("Horizontal", 2))
sketch11.addConstraint(Sketcher.Constraint("Vertical", 3))
sketch11.addConstraint(Sketcher.Constraint("PointOnObject", 0, 2, -1))
sketch11.addConstraint(Sketcher.Constraint("DistanceX", 0, 2, 0, 1, 20.0))
sketch11.addConstraint(Sketcher.Constraint("DistanceY", 1, 2, 1, 1, 5.0))
sketch11.addConstraint(Sketcher.Constraint("DistanceX", -1, 1, 0, 2, 6.5))
sketch11.setExpression("Constraints[9]", "Params.sketch11_width")
sketch11.setExpression("Constraints[10]", "Params.sketch11_height")
pad5 = body.newObject("PartDesign::Pad", "Pad004")
pad5.Profile = sketch11
pad5.setExpression("Length", "Params.pad5_length")

# Sketch on XY plane
sketch12 = body.newObject("Sketcher::SketchObject", "Sketch011")
sketch12.AttachmentSupport = (doc.getObject("XY_Plane"), [""])
sketch12.MapMode = "FlatFace"
sketch12.addGeometry(Part.Circle(Vector(59.5, 16.5, 0), Vector(0, 0, 1), 2.25), False)
sketch12.addConstraint(Sketcher.Constraint("Diameter", 0, 4.5))
sketch12.addConstraint(Sketcher.Constraint("DistanceX", -1, 1, 0, 3, 59.5))
sketch12.addConstraint(Sketcher.Constraint("DistanceY", -1, 1, 0, 3, 16.5))
sketch12.setExpression("Constraints[0]", "Params.sketch12_diameter")
pocket7 = body.newObject("PartDesign::Pocket", "Pocket006")
pocket7.Profile = sketch12
pocket7.Type = "ThroughAll"
doc.recompute()

fillet6 = body.newObject("PartDesign::Fillet", "Fillet005")
fillet6.Base = (pocket7, edges_at(pocket7, [(69.5, 6.5, -2.5), (69.5, 26.5, -2.5)]))
fillet6.setExpression("Radius", "Params.fillet6_radius")
doc.recompute()

fillet7 = body.newObject("PartDesign::Fillet", "Fillet006")
fillet7.Base = (fillet6, edges_at(fillet6, [
    (6.5, -5, -2.5),
    (6.5, 38, -2.5),
    (26.5, 38, -2),
    (26.5, -5, -2),
    (38, 6.5, -2.5),
    (38, 26.5, -2.5),
    (38, 16.5, 0),
]))
fillet7.setExpression("Radius", "Params.fillet7_radius")
doc.recompute()

fillet8 = body.newObject("PartDesign::Fillet", "Fillet007")
fillet8.Base = (fillet7, edges_at(fillet7, [(38, -5, 10), (38, 38, 10)]))
fillet8.setExpression("Radius", "Params.fillet8_radius")

doc.recompute()
